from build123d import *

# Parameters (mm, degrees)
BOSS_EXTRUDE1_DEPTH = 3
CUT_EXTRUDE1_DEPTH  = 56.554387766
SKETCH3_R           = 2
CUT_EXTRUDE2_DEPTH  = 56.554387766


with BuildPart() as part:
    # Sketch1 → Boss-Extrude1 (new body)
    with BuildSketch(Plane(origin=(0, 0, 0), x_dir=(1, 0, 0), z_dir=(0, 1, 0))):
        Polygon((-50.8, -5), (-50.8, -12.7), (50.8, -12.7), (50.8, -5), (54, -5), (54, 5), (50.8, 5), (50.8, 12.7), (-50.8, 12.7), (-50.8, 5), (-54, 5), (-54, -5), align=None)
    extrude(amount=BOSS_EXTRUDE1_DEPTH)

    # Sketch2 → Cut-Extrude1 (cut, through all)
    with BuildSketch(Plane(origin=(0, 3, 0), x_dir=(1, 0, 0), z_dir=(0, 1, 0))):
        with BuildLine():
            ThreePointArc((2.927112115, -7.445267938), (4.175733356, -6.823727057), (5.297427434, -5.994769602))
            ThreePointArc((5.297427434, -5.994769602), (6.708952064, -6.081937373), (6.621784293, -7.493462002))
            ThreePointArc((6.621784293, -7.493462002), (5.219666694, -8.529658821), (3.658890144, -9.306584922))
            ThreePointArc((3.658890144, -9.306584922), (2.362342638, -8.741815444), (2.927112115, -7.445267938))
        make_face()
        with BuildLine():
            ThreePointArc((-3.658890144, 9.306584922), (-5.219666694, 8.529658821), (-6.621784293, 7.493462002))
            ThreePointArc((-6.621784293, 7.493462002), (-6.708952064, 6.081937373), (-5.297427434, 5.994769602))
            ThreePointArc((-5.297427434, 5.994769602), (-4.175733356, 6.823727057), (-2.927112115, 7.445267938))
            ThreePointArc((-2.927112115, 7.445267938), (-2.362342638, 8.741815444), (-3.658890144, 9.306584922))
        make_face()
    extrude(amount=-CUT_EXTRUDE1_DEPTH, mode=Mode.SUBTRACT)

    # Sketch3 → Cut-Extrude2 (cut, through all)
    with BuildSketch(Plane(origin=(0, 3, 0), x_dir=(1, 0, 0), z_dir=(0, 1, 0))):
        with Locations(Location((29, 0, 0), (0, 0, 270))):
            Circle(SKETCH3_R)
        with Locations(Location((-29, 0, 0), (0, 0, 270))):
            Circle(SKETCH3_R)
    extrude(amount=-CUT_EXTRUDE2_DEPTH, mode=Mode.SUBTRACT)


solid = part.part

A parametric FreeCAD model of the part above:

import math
import FreeCAD as App
import Part
import Sketcher
from FreeCAD import Vector
Q = App.Units.Quantity

doc = App.newDocument("Part")
body = doc.addObject("PartDesign::Body", "Body")

sketch1 = body.newObject("Sketcher::SketchObject", "Sketch")
sketch1.AttachmentSupport = (doc.getObject("XZ_Plane"), [""])
sketch1.MapMode = "FlatFace"
sketch1.addGeometry(Part.LineSegment(Vector(-50.8, 5, 0), Vector(-50.8, 12.7, 0)), False)
sketch1.addGeometry(Part.LineSegment(Vector(-50.8, 12.7, 0), Vector(50.8, 12.7, 0)), False)
sketch1.addGeometry(Part.LineSegment(Vector(50.8, 12.7, 0), Vector(50.8, 5, 0)), False)
sketch1.addGeometry(Part.LineSegment(Vector(50.8, 5, 0), Vector(54, 5, 0)), False)
sketch1.addGeometry(Part.LineSegment(Vector(54, 5, 0), Vector(54, -5, 0)), False)
sketch1.addGeometry(Part.LineSegment(Vector(54, -5, 0), Vector(50.8, -5, 0)), False)
sketch1.addGeometry(Part.LineSegment(Vector(50.8, -5, 0), Vector(50.8, -12.7, 0)), False)
sketch1.addGeometry(Part.LineSegment(Vector(50.8, -12.7, 0), Vector(-50.8, -12.7, 0)), False)
sketch1.addGeometry(Part.LineSegment(Vector(-50.8, -12.7, 0), Vector(-50.8, -5, 0)), False)
sketch1.addGeometry(Part.LineSegment(Vector(-50.8, -5, 0), Vector(-54, -5, 0)), False)
sketch1.addGeometry(Part.LineSegment(Vector(-54, -5, 0), Vector(-54, 5, 0)), False)
sketch1.addGeometry(Part.LineSegment(Vector(-54, 5, 0), Vector(-50.8, 5, 0)), False)
sketch1.addConstraint(Sketcher.Constraint("Coincident", 0, 2, 1, 1))
sketch1.addConstraint(Sketcher.Constraint("Coincident", 1, 2, 2, 1))
sketch1.addConstraint(Sketcher.Constraint("Coincident", 2, 2, 3, 1))
sketch1.addConstraint(Sketcher.Constraint("Coincident", 3, 2, 4, 1))
sketch1.addConstraint(Sketcher.Constraint("Coincident", 4, 2, 5, 1))
sketch1.addConstraint(Sketcher.Constraint("Coincident", 5, 2, 6, 1))
sketch1.addConstraint(Sketcher.Constraint("Coincident", 6, 2, 7, 1))
sketch1.addConstraint(Sketcher.Constraint("Coincident", 7, 2, 8, 1))
sketch1.addConstraint(Sketcher.Constraint("Coincident", 8, 2, 9, 1))
sketch1.addConstraint(Sketcher.Constraint("Coincident", 9, 2, 10, 1))
sketch1.addConstraint(Sketcher.Constraint("Coincident", 10, 2, 11, 1))
sketch1.addConstraint(Sketcher.Constraint("Coincident", 11, 2, 0, 1))
sketch1.addConstraint(Sketcher.Constraint("Vertical", 0))
sketch1.addConstraint(Sketcher.Constraint("Horizontal", 1))
sketch1.addConstraint(Sketcher.Constraint("Vertical", 2))
sketch1.addConstraint(Sketcher.Constraint("Horizontal", 3))
sketch1.addConstraint(Sketcher.Constraint("Vertical", 4))
sketch1.addConstraint(Sketcher.Constraint("Horizontal", 5))
sketch1.addConstraint(Sketcher.Constraint("Vertical", 6))
sketch1.addConstraint(Sketcher.Constraint("Horizontal", 7))
sketch1.addConstraint(Sketcher.Constraint("Vertical", 8))
sketch1.addConstraint(Sketcher.Constraint("Horizontal", 9))
sketch1.addConstraint(Sketcher.Constraint("Vertical", 10))
sketch1.addConstraint(Sketcher.Constraint("Horizontal", 11))
sketch1.addConstraint(Sketcher.Constraint("Symmetric", 0, 2, 6, 2, -1, 1))
sketch1.addConstraint(Sketcher.Constraint("Symmetric", 2, 2, 8, 2, -1, 1))
sketch1.addConstraint(Sketcher.Constraint("Symmetric", 4, 2, 10, 2, -1, 1))
sketch1.addConstraint(Sketcher.Constraint("Symmetric", 5, 2, 8, 2, -2))
sketch1.addConstraint(Sketcher.Constraint("DistanceY", 4, 2, 4, 1, Q("10 mm")))
sketch1.addConstraint(Sketcher.Constraint("DistanceX", 1, 1, 1, 2, Q("101.6 mm")))
sketch1.addConstraint(Sketcher.Constraint("DistanceX", 3, 1, 3, 2, Q("3.2 mm")))
sketch1.addConstraint(Sketcher.Constraint("DistanceY", 0, 1, 0, 2, Q("7.7 mm")))
pad1 = body.newObject("PartDesign::Pad", "Pad")
pad1.Profile = sketch1
pad1.Length = 3
pad1.Reversed = True

sketch2 = body.newObject("Sketcher::SketchObject", "Sketch001")
sketch2.AttachmentSupport = (doc.getObject("XZ_Plane"), [""])
sketch2.MapMode = "FlatFace"
sketch2.AttachmentOffset = App.Placement(Vector(0, 0, -3), App.Rotation())
sketch2.addGeometry(Part.ArcOfCircle(Part.Circle(Vector(0, 0, 0), Vector(0, 0, 1), 8), math.radians(49), math.radians(69)), False)
sketch2.addGeometry(Part.ArcOfCircle(Part.Circle(Vector(3.3, 8.4, 0), Vector(0, 0, 1), 1), math.radians(69), math.radians(249)), False)
sketch2.addGeometry(Part.ArcOfCircle(Part.Circle(Vector(0, 0, 0), Vector(0, 0, 1), 10), math.radians(49), math.radians(69)), False)
sketch2.addGeometry(Part.ArcOfCircle(Part.Circle(Vector(6, 6.7, 0), Vector(0, 0, 1), 1), math.radians(-131), math.radians(49)), False)
sketch2.addGeometry(Part.ArcOfCircle(Part.Circle(Vector(0, 0, 0), Vector(0, 0, 1), 10), math.radians(-131), math.radians(-111)), False)
sketch2.addGeometry(Part.ArcOfCircle(Part.Circle(Vector(-6, -6.7, 0), Vector(0, 0, 1), 1), math.radians(49), math.radians(229)), False)
sketch2.addGeometry(Part.ArcOfCircle(Part.Circle(Vector(0, 0, 0), Vector(0, 0, 1), 8), math.radians(-131), math.radians(-111)), False)
sketch2.addGeometry(Part.ArcOfCircle(Part.Circle(Vector(-3.3, -8.4, 0), Vector(0, 0, 1), 1), math.radians(-111), math.radians(69)), False)
sketch2.addConstraint(Sketcher.Constraint("Tangent", 0, 2, 1, 2))
sketch2.addConstraint(Sketcher.Constraint("Tangent", 1, 1, 2, 2))
sketch2.addConstraint(Sketcher.Constraint("Tangent", 2, 1, 3, 2))
sketch2.addConstraint(Sketcher.Constraint("Tangent", 3, 1, 0, 1))
sketch2.addConstraint(Sketcher.Constraint("Tangent", 4, 1, 5, 2))
sketch2.addConstraint(Sketcher.Constraint("Tangent", 5, 1, 6, 1))
sketch2.addConstraint(Sketcher.Constraint("Tangent", 6, 2, 7, 2))
sketch2.addConstraint(Sketcher.Constraint("Tangent", 7, 1, 4, 2))
sketch2.addConstraint(Sketcher.Constraint("Coincident", 0, 3, -1, 1))
sketch2.addConstraint(Sketcher.Constraint("Coincident", 2, 3, -1, 1))
sketch2.addConstraint(Sketcher.Constraint("Coincident", 4, 3, -1, 1))
sketch2.addConstraint(Sketcher.Constraint("Coincident", 6, 3, -1, 1))
sketch2.addConstraint(Sketcher.Constraint("Equal", 2, 4))
sketch2.addConstraint(Sketcher.Constraint("Equal", 3, 5))
sketch2.addConstraint(Sketcher.Constraint("Radius", 0, Q("8 mm")))
sketch2.addConstraint(Sketcher.Constraint("Radius", 1, Q("1 mm")))
sketch2.addConstraint(Sketcher.Constraint("DistanceX", -1, 1, 1, 3, Q("3.293001 mm")))
sketch2.addConstraint(Sketcher.Constraint("DistanceX", 7, 3, -1, 1, Q("3.293001 mm")))
sketch2.addConstraint(Sketcher.Constraint("DistanceY", 3, 1, 0, 2, Q("1.450498 mm")))
sketch2.addConstraint(Sketcher.Constraint("DistanceY", 6, 2, 5, 1, Q("1.450498 mm")))
pocket1 = body.newObject("PartDesign::Pocket", "Pocket")
pocket1.Profile = sketch2
pocket1.Type = "ThroughAll"
pocket1.Reversed = True

sketch3 = body.newObject("Sketcher::SketchObject", "Sketch002")
sketch3.AttachmentSupport = (doc.getObject("XZ_Plane"), [""])
sketch3.MapMode = "FlatFace"
sketch3.AttachmentOffset = App.Placement(Vector(0, 0, -3), App.Rotation())
sketch3.addGeometry(Part.Circle(Vector(29, 0, 0), Vector(0, 0, 1), 2), False)
sketch3.addGeometry(Part.Circle(Vector(-29, 0, 0), Vector(0, 0, 1), 2), False)
sketch3.addConstraint(Sketcher.Constraint("Equal", 0, 1))
sketch3.addConstraint(Sketcher.Constraint("Symmetric", 0, 3, 1, 3, -1, 1))
sketch3.addConstraint(Sketcher.Constraint("PointOnObject", 0, 3, -1))
sketch3.addConstraint(Sketcher.Constraint("Diameter", 0, Q("4 mm")))
sketch3.addConstraint(Sketcher.Constraint("DistanceX", -1, 1, 0, 3, Q("29 mm")))
pocket2 = body.newObject("PartDesign::Pocket", "Pocket001")
pocket2.Profile = sketch3
pocket2.Type = "ThroughAll"
pocket2.Reversed = True

doc.recompute()
